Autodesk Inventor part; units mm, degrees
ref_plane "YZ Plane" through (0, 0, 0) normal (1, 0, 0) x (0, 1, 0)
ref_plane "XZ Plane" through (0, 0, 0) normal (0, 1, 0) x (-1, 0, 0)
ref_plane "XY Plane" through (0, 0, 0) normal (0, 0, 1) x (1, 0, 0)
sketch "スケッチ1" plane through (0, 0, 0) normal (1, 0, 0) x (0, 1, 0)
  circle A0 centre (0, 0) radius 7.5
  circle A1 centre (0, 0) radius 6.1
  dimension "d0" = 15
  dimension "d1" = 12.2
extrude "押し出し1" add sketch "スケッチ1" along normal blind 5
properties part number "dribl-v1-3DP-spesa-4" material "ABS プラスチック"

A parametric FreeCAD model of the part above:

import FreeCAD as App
import Part
import Sketcher

V = App.Vector
Q = App.Units.Quantity

doc = App.newDocument("Part")
body = doc.addObject("PartDesign::Body", "Body")

sketch1 = body.newObject("Sketcher::SketchObject", "Sketch")
sketch1.AttachmentSupport = (doc.getObject("YZ_Plane"), [""])
sketch1.MapMode = "FlatFace"
sketch1.addGeometry([
    Part.Circle(V(0, 0, 0), V(0, 0, 1), 8),
    Part.Circle(V(0, 0, 0), V(0, 0, 1), 6),
], False)
sketch1.addConstraint([
    Sketcher.Constraint("Coincident", 0, 3, -1, 1),
    Sketcher.Constraint("Coincident", 1, 3, -1, 1),
    Sketcher.Constraint("Diameter", 0, Q("15 mm")),
    Sketcher.Constraint("Diameter", 1, Q("12.2 mm")),
])
pad1 = body.newObject("PartDesign::Pad", "Pad")
pad1.Profile = sketch1
pad1.Length = 5

doc.recompute()
